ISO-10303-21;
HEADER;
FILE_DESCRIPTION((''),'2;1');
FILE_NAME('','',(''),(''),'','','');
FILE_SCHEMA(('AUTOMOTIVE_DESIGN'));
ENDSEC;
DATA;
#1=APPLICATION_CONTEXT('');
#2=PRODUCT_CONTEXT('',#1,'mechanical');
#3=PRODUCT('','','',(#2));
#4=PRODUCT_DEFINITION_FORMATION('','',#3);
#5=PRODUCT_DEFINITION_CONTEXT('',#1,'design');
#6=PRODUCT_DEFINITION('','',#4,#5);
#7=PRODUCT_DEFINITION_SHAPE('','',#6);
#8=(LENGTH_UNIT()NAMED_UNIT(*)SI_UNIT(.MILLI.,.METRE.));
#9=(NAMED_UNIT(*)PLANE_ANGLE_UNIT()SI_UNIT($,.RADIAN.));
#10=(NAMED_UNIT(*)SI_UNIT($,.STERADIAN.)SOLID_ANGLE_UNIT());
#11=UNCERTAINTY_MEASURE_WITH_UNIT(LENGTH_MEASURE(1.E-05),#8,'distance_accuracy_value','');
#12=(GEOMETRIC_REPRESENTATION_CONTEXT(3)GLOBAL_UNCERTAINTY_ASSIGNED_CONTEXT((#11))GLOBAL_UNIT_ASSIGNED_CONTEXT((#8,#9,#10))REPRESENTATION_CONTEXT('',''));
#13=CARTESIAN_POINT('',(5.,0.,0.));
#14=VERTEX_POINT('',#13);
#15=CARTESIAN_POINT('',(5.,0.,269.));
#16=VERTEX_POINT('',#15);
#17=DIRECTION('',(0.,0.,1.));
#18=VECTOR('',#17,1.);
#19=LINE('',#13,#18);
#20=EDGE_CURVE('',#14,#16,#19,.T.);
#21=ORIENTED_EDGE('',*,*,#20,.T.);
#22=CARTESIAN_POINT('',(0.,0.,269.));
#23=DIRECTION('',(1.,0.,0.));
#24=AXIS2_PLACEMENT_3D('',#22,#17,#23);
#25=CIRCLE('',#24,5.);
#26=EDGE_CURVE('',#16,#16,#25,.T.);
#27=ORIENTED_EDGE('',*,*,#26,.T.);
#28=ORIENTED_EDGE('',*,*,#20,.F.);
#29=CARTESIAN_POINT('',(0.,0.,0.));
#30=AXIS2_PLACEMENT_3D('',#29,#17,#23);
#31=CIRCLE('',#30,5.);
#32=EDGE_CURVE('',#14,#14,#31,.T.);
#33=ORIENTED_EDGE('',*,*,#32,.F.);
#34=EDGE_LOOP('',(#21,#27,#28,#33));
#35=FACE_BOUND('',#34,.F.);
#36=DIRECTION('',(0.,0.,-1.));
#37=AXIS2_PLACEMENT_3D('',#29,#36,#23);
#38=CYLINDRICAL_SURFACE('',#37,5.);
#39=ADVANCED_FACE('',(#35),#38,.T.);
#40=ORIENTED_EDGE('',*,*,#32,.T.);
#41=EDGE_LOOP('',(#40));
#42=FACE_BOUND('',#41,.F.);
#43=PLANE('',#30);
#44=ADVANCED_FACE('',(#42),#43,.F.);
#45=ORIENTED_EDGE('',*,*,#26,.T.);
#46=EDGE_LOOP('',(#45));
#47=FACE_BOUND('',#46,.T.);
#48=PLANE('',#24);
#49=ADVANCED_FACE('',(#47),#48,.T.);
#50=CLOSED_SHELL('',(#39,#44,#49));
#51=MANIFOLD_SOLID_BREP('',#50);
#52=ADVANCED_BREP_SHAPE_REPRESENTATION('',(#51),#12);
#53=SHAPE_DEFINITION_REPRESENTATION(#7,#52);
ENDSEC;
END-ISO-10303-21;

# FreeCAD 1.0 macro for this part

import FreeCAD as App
import Part
import Sketcher

doc = App.newDocument("Part")
params = doc.addObject("Spreadsheet::Sheet", "Params")
for row, (alias, value) in enumerate([
    ("sketch1_diameter", "10 mm"),
    ("pad1_length", "269 mm"),
], start=1):
    params.set(f"A{row}", alias)
    params.set(f"B{row}", "=" + value)
    params.setAlias(f"B{row}", alias)

body = doc.addObject("PartDesign::Body", "Body")

# Sketch on XY plane
sketch1 = body.newObject("Sketcher::SketchObject", "Sketch")
sketch1.AttachmentSupport = (doc.getObject("XY_Plane"), [""])
sketch1.MapMode = "FlatFace"
sketch1.addGeometry(Part.Circle(App.Vector(0, 0, 0), App.Vector(0, 0, 1), 5), False)
sketch1.addConstraint([
    Sketcher.Constraint("Coincident", 0, 3, -1, 1),
    Sketcher.Constraint("Diameter", 0, 10.0),
])
sketch1.setExpression("Constraints[1]", "Params.sketch1_diameter")
pad1 = body.newObject("PartDesign::Pad", "Pad")
pad1.Profile = sketch1
pad1.setExpression("Length", "Params.pad1_length")

doc.recompute()
